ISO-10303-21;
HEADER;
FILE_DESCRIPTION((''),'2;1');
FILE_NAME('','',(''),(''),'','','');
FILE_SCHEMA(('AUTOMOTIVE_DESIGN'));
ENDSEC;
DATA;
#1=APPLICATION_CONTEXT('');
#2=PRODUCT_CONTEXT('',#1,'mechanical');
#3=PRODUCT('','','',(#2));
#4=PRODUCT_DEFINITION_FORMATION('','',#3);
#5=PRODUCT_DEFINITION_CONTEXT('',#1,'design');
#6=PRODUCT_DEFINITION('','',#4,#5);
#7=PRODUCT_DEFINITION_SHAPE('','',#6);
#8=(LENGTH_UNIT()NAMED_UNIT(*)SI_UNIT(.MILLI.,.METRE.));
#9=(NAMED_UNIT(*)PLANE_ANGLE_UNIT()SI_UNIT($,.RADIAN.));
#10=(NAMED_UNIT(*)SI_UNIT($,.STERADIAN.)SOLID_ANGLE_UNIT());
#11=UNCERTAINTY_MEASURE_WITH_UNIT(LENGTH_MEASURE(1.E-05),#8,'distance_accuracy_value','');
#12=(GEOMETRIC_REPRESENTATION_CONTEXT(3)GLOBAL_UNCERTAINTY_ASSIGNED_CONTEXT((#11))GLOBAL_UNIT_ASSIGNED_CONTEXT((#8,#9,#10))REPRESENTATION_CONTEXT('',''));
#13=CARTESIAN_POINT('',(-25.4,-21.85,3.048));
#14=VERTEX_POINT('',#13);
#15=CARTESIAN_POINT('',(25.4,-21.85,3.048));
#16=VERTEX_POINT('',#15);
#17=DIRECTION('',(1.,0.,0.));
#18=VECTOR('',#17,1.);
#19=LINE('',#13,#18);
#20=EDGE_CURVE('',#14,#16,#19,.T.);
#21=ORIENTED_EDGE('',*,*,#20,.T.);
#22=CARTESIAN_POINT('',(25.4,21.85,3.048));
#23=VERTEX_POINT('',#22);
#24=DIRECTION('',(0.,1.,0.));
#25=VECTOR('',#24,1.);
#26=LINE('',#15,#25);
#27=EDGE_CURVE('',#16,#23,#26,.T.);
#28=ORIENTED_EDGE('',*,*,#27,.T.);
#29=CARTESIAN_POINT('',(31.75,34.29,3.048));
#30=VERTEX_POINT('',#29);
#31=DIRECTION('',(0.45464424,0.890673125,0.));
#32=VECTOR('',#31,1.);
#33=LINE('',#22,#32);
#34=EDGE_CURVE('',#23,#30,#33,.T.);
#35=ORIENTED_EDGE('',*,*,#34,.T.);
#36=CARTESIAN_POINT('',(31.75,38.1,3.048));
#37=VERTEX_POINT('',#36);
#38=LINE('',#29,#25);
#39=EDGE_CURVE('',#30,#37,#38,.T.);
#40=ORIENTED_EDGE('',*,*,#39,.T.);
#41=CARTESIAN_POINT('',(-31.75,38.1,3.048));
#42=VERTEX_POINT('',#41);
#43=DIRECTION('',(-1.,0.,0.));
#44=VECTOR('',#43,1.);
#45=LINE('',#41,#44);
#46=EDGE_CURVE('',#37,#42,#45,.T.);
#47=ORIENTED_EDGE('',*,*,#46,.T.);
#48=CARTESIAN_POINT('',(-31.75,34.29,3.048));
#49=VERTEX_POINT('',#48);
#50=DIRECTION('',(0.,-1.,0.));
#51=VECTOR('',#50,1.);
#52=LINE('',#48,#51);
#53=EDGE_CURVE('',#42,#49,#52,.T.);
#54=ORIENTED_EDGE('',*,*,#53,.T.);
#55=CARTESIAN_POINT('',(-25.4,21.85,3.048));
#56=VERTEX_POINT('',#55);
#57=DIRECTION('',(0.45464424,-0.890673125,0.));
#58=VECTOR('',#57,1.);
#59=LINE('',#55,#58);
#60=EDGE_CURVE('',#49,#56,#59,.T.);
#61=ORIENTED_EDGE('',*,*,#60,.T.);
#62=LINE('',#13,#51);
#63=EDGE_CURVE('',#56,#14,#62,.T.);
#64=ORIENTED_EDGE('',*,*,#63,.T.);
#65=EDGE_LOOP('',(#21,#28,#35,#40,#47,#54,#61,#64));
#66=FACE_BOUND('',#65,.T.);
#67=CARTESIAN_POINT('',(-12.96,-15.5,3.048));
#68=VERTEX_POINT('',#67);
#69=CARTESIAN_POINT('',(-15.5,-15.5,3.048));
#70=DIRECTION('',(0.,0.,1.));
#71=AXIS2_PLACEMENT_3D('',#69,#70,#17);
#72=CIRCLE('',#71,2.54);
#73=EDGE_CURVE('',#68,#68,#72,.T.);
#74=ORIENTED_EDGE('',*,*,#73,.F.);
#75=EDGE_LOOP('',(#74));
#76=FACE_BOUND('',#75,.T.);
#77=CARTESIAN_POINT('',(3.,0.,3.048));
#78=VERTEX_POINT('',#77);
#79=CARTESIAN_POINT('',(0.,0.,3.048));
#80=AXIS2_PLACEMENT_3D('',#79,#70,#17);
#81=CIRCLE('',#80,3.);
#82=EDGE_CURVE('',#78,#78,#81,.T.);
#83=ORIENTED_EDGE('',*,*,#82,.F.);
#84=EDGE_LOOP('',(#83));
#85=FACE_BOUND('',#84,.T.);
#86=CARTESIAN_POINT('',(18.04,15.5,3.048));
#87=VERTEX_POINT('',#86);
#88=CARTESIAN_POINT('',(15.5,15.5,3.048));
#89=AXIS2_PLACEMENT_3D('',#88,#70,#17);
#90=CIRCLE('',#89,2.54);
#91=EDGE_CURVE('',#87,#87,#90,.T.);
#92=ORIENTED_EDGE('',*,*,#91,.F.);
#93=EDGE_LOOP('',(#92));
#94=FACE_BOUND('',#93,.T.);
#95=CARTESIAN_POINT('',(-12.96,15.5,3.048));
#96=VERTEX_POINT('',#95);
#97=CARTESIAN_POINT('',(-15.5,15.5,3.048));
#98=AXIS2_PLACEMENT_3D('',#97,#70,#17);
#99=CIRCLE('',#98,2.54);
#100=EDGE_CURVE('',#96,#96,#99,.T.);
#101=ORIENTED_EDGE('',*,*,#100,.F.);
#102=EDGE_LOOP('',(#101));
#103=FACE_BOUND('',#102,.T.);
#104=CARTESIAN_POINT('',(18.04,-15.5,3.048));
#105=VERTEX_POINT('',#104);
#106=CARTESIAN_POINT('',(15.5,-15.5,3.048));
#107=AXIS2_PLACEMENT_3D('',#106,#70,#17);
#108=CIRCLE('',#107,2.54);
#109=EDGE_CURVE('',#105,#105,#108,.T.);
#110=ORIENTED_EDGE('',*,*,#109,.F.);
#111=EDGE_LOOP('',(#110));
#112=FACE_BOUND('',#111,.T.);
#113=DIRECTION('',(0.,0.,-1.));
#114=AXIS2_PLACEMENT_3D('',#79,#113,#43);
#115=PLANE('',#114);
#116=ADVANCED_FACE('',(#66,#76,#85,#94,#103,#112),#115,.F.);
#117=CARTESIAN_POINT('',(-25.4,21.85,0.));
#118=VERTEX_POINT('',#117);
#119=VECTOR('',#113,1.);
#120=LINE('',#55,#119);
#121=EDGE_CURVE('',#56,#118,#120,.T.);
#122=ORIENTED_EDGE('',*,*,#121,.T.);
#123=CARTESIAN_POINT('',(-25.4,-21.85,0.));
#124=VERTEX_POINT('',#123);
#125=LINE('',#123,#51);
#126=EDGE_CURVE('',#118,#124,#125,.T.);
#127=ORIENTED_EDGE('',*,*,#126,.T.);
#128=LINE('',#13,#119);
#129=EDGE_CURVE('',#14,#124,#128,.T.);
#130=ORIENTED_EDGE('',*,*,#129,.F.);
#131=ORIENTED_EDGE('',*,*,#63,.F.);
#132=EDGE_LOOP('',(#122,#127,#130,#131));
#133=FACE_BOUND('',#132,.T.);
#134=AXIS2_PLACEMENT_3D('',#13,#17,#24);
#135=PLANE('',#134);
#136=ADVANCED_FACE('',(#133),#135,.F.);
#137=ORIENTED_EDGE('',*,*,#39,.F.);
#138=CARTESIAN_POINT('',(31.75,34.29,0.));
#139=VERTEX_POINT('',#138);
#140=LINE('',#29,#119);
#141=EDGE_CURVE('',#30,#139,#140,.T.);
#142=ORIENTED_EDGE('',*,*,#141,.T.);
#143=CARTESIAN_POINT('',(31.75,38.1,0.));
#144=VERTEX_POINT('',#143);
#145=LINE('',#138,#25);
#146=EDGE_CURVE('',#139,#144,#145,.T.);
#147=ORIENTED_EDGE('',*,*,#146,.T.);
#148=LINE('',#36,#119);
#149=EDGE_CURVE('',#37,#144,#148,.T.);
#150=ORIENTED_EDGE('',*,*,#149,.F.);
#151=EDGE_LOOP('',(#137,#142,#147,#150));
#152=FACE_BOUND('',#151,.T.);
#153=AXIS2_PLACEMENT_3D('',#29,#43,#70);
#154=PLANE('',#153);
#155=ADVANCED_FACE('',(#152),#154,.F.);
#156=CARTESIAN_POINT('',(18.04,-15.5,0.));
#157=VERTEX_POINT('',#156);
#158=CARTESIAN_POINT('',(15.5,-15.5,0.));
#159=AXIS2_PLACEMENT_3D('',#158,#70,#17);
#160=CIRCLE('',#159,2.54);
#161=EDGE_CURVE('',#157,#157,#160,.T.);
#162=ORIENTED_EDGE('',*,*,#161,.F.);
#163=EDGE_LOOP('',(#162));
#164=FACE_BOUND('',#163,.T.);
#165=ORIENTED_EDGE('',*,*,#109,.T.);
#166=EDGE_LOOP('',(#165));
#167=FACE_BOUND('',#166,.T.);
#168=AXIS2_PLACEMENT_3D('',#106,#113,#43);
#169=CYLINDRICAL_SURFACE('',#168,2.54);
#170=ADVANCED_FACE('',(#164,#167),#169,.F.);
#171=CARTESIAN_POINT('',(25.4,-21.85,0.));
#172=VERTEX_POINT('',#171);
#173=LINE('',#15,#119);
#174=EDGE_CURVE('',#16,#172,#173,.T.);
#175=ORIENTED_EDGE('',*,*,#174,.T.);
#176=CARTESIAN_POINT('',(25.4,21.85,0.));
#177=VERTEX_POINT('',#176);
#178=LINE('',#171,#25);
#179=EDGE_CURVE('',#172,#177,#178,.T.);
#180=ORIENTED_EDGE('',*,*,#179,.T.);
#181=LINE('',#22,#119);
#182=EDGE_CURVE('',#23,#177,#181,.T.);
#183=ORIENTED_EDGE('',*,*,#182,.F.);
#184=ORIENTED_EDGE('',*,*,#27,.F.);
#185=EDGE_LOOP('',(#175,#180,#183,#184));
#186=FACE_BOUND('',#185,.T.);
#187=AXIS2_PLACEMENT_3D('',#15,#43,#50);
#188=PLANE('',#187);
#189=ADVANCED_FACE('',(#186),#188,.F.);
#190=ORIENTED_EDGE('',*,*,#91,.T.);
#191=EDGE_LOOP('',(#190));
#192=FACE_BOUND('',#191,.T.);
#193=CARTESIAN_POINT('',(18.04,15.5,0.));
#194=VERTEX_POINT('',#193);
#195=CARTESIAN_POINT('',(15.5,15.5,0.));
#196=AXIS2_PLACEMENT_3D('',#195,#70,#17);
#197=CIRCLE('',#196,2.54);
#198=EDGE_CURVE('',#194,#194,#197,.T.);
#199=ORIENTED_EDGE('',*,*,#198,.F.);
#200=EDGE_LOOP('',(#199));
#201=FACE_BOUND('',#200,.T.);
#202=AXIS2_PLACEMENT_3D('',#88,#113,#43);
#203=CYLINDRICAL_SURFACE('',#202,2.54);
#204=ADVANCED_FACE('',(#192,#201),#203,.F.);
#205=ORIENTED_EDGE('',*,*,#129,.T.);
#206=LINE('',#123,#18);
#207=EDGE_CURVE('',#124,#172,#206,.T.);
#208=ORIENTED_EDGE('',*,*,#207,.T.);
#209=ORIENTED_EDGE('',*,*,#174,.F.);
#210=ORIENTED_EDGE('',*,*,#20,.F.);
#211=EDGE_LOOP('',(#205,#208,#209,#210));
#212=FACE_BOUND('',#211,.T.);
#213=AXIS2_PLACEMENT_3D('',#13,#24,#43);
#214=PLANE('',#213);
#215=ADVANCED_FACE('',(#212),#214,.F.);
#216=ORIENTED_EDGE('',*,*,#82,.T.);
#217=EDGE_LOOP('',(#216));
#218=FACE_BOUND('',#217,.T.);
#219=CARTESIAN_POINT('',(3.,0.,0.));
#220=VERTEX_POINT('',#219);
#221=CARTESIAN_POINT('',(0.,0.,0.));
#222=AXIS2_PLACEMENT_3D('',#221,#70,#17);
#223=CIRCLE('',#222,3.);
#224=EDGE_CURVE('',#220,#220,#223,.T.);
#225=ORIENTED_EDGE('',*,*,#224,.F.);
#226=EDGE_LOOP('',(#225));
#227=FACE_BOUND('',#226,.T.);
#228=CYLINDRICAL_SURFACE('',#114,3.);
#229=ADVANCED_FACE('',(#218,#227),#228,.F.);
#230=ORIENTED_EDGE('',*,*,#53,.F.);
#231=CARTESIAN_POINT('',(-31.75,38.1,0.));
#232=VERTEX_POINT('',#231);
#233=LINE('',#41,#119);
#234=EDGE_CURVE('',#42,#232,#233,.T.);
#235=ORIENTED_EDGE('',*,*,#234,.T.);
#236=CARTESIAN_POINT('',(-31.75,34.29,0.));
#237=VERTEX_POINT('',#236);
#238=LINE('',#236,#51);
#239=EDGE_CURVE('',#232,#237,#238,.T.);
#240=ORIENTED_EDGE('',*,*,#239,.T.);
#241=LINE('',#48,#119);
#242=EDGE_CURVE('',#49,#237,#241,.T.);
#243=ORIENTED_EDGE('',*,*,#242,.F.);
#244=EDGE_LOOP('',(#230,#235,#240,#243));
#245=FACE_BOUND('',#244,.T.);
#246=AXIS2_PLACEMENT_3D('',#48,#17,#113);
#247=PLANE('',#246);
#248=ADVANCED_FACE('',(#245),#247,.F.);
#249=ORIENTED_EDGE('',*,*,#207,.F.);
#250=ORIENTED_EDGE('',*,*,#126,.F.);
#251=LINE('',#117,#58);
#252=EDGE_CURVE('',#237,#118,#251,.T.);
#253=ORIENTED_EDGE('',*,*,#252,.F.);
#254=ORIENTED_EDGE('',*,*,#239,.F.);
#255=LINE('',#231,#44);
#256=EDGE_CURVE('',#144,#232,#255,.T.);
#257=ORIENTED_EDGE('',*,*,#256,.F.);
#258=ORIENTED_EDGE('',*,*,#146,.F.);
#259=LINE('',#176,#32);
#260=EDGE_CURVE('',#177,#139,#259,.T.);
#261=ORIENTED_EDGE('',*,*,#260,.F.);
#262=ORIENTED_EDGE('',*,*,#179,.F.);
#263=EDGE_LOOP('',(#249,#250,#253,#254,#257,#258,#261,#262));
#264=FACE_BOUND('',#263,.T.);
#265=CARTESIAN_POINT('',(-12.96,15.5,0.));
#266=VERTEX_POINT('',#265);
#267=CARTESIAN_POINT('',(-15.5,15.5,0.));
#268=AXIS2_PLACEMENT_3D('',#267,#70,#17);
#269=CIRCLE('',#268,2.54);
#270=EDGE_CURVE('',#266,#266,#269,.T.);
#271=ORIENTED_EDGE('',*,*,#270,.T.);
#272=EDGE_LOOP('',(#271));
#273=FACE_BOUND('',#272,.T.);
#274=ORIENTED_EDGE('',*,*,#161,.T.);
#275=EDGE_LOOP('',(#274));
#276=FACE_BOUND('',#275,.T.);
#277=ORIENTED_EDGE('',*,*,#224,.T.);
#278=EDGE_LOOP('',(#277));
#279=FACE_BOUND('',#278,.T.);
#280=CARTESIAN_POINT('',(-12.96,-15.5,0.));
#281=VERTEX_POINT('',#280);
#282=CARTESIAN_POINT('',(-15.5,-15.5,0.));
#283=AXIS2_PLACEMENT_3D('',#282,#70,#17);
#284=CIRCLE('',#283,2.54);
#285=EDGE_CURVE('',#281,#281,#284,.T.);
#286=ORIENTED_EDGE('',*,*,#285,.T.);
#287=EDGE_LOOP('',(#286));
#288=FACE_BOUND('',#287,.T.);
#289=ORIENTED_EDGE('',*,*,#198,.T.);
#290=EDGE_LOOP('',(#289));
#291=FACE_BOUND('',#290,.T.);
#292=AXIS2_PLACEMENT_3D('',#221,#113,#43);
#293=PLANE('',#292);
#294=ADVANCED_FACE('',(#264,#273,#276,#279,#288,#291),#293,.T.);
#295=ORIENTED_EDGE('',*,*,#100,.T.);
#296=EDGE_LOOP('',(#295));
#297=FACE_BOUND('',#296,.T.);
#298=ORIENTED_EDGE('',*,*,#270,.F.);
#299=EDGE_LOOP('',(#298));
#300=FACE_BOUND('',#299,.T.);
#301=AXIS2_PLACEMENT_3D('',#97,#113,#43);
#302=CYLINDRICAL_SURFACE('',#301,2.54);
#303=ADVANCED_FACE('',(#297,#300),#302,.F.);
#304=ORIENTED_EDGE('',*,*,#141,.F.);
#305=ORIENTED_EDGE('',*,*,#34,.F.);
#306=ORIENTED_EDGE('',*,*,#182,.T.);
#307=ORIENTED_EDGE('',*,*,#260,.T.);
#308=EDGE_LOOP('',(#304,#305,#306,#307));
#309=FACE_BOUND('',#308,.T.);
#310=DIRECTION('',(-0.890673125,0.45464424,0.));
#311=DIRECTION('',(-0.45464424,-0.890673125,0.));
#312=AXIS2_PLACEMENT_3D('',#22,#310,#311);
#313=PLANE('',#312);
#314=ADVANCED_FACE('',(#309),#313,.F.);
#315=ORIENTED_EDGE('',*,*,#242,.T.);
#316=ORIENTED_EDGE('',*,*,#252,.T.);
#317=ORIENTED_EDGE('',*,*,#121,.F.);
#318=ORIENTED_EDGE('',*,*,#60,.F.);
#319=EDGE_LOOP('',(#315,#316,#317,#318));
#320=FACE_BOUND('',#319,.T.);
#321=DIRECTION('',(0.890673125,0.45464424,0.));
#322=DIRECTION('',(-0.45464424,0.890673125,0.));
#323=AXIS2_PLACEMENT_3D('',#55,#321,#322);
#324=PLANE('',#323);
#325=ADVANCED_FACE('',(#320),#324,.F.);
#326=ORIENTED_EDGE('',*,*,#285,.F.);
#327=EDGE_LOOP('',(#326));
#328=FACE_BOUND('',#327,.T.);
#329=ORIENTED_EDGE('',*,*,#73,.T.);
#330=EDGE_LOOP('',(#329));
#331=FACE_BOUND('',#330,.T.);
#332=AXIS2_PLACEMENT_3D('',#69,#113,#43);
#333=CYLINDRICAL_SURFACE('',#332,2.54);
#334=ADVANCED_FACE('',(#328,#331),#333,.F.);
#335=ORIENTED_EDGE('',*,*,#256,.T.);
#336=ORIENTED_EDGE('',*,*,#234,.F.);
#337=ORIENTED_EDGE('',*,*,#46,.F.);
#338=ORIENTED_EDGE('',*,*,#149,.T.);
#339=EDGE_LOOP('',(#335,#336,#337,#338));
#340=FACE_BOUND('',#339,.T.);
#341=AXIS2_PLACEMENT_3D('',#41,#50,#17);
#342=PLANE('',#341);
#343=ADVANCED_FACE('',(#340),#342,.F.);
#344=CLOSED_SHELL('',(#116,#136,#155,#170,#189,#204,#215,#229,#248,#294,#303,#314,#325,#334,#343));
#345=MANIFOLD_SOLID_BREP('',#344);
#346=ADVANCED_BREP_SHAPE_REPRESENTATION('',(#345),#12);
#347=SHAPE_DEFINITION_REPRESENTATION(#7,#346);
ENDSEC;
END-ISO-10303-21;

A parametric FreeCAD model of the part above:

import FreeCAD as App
import Part
import Sketcher
Q = App.Units.Quantity


def add_polygon(sketch, points):
    """Adds a closed chain of lines whose ends are joined by coincident constraints."""
    first, n = sketch.GeometryCount, len(points)
    for a, b in zip(points, points[1:] + points[:1]):
        sketch.addGeometry(Part.LineSegment(App.Vector(*a, 0), App.Vector(*b, 0)), False)
    for i in range(n):
        sketch.addConstraint(Sketcher.Constraint("Coincident", first + i, 2, first + (i + 1) % n, 1))

doc = App.newDocument("Part")
body = doc.addObject("PartDesign::Body", "Body")

sketch1 = body.newObject("Sketcher::SketchObject", "Sketch")
sketch1.AttachmentSupport = (doc.getObject("XY_Plane"), [""])
sketch1.MapMode = "FlatFace"
add_polygon(sketch1, [(-25.4, -21.85), (25.4, -21.85), (25.4, 21.85), (31.75, 34.29), (31.75, 38.1), (-31.75, 38.1), (-31.75, 34.29), (-25.4, 21.85)])
sketch1.addGeometry(Part.Circle(App.Vector(-15.5, -15.5, 0), App.Vector(0, 0, 1), 2.54), False)
sketch1.addGeometry(Part.Circle(App.Vector(15.5, -15.5, 0), App.Vector(0, 0, 1), 2.54), False)
sketch1.addGeometry(Part.Circle(App.Vector(-15.5, 15.5, 0), App.Vector(0, 0, 1), 2.54), False)
sketch1.addGeometry(Part.Circle(App.Vector(0, 0, 0), App.Vector(0, 0, 1), 3), False)
sketch1.addGeometry(Part.Circle(App.Vector(15.5, 15.5, 0), App.Vector(0, 0, 1), 2.54), False)
sketch1.addConstraint([
    Sketcher.Constraint("Horizontal", 0),
    Sketcher.Constraint("Vertical", 1),
    Sketcher.Constraint("Vertical", 3),
    Sketcher.Constraint("Horizontal", 4),
    Sketcher.Constraint("Vertical", 5),
    Sketcher.Constraint("Vertical", 7),
    Sketcher.Constraint("Coincident", 11, 3, -1, 1),
    Sketcher.Constraint("Equal", 8, 9),
    Sketcher.Constraint("Equal", 9, 10),
    Sketcher.Constraint("Equal", 10, 12),
    Sketcher.Constraint("Symmetric", 9, 3, 10, 3, -1, 1),
    Sketcher.Constraint("Symmetric", 8, 3, 12, 3, -1, 1),
    Sketcher.Constraint("Symmetric", 0, 2, 6, 2, -1, 1),
    Sketcher.Constraint("Symmetric", 8, 3, 9, 3, -2),
    Sketcher.Constraint("Symmetric", 2, 2, 5, 2, -2),
    Sketcher.Constraint("Horizontal", 1, 2, 6, 2),
    Sketcher.Constraint("Diameter", 8, Q("0.2 in")),
    Sketcher.Constraint("DistanceX", 0, 1, 0, 2, Q("2 in")),
    Sketcher.Constraint("DistanceX", 4, 2, 4, 1, Q("2.5 in")),
    Sketcher.Constraint("DistanceY", 3, 1, 3, 2, Q("0.15 in")),
    Sketcher.Constraint("DistanceY", -1, 1, 3, 2, Q("1.5 in")),
    Sketcher.Constraint("Diameter", 11, 6.0),
    Sketcher.Constraint("DistanceY", 0, 2, 9, 3, Q("0.25 in")),
    Sketcher.Constraint("DistanceY", 1, 1, 1, 2, 43.7),
    Sketcher.Constraint("DistanceX", 8, 3, -1, 1, 15.5),
])
pad1 = body.newObject("PartDesign::Pad", "Pad")
pad1.Profile = sketch1
pad1.Length = Q("0.12 in")

doc.recompute()
